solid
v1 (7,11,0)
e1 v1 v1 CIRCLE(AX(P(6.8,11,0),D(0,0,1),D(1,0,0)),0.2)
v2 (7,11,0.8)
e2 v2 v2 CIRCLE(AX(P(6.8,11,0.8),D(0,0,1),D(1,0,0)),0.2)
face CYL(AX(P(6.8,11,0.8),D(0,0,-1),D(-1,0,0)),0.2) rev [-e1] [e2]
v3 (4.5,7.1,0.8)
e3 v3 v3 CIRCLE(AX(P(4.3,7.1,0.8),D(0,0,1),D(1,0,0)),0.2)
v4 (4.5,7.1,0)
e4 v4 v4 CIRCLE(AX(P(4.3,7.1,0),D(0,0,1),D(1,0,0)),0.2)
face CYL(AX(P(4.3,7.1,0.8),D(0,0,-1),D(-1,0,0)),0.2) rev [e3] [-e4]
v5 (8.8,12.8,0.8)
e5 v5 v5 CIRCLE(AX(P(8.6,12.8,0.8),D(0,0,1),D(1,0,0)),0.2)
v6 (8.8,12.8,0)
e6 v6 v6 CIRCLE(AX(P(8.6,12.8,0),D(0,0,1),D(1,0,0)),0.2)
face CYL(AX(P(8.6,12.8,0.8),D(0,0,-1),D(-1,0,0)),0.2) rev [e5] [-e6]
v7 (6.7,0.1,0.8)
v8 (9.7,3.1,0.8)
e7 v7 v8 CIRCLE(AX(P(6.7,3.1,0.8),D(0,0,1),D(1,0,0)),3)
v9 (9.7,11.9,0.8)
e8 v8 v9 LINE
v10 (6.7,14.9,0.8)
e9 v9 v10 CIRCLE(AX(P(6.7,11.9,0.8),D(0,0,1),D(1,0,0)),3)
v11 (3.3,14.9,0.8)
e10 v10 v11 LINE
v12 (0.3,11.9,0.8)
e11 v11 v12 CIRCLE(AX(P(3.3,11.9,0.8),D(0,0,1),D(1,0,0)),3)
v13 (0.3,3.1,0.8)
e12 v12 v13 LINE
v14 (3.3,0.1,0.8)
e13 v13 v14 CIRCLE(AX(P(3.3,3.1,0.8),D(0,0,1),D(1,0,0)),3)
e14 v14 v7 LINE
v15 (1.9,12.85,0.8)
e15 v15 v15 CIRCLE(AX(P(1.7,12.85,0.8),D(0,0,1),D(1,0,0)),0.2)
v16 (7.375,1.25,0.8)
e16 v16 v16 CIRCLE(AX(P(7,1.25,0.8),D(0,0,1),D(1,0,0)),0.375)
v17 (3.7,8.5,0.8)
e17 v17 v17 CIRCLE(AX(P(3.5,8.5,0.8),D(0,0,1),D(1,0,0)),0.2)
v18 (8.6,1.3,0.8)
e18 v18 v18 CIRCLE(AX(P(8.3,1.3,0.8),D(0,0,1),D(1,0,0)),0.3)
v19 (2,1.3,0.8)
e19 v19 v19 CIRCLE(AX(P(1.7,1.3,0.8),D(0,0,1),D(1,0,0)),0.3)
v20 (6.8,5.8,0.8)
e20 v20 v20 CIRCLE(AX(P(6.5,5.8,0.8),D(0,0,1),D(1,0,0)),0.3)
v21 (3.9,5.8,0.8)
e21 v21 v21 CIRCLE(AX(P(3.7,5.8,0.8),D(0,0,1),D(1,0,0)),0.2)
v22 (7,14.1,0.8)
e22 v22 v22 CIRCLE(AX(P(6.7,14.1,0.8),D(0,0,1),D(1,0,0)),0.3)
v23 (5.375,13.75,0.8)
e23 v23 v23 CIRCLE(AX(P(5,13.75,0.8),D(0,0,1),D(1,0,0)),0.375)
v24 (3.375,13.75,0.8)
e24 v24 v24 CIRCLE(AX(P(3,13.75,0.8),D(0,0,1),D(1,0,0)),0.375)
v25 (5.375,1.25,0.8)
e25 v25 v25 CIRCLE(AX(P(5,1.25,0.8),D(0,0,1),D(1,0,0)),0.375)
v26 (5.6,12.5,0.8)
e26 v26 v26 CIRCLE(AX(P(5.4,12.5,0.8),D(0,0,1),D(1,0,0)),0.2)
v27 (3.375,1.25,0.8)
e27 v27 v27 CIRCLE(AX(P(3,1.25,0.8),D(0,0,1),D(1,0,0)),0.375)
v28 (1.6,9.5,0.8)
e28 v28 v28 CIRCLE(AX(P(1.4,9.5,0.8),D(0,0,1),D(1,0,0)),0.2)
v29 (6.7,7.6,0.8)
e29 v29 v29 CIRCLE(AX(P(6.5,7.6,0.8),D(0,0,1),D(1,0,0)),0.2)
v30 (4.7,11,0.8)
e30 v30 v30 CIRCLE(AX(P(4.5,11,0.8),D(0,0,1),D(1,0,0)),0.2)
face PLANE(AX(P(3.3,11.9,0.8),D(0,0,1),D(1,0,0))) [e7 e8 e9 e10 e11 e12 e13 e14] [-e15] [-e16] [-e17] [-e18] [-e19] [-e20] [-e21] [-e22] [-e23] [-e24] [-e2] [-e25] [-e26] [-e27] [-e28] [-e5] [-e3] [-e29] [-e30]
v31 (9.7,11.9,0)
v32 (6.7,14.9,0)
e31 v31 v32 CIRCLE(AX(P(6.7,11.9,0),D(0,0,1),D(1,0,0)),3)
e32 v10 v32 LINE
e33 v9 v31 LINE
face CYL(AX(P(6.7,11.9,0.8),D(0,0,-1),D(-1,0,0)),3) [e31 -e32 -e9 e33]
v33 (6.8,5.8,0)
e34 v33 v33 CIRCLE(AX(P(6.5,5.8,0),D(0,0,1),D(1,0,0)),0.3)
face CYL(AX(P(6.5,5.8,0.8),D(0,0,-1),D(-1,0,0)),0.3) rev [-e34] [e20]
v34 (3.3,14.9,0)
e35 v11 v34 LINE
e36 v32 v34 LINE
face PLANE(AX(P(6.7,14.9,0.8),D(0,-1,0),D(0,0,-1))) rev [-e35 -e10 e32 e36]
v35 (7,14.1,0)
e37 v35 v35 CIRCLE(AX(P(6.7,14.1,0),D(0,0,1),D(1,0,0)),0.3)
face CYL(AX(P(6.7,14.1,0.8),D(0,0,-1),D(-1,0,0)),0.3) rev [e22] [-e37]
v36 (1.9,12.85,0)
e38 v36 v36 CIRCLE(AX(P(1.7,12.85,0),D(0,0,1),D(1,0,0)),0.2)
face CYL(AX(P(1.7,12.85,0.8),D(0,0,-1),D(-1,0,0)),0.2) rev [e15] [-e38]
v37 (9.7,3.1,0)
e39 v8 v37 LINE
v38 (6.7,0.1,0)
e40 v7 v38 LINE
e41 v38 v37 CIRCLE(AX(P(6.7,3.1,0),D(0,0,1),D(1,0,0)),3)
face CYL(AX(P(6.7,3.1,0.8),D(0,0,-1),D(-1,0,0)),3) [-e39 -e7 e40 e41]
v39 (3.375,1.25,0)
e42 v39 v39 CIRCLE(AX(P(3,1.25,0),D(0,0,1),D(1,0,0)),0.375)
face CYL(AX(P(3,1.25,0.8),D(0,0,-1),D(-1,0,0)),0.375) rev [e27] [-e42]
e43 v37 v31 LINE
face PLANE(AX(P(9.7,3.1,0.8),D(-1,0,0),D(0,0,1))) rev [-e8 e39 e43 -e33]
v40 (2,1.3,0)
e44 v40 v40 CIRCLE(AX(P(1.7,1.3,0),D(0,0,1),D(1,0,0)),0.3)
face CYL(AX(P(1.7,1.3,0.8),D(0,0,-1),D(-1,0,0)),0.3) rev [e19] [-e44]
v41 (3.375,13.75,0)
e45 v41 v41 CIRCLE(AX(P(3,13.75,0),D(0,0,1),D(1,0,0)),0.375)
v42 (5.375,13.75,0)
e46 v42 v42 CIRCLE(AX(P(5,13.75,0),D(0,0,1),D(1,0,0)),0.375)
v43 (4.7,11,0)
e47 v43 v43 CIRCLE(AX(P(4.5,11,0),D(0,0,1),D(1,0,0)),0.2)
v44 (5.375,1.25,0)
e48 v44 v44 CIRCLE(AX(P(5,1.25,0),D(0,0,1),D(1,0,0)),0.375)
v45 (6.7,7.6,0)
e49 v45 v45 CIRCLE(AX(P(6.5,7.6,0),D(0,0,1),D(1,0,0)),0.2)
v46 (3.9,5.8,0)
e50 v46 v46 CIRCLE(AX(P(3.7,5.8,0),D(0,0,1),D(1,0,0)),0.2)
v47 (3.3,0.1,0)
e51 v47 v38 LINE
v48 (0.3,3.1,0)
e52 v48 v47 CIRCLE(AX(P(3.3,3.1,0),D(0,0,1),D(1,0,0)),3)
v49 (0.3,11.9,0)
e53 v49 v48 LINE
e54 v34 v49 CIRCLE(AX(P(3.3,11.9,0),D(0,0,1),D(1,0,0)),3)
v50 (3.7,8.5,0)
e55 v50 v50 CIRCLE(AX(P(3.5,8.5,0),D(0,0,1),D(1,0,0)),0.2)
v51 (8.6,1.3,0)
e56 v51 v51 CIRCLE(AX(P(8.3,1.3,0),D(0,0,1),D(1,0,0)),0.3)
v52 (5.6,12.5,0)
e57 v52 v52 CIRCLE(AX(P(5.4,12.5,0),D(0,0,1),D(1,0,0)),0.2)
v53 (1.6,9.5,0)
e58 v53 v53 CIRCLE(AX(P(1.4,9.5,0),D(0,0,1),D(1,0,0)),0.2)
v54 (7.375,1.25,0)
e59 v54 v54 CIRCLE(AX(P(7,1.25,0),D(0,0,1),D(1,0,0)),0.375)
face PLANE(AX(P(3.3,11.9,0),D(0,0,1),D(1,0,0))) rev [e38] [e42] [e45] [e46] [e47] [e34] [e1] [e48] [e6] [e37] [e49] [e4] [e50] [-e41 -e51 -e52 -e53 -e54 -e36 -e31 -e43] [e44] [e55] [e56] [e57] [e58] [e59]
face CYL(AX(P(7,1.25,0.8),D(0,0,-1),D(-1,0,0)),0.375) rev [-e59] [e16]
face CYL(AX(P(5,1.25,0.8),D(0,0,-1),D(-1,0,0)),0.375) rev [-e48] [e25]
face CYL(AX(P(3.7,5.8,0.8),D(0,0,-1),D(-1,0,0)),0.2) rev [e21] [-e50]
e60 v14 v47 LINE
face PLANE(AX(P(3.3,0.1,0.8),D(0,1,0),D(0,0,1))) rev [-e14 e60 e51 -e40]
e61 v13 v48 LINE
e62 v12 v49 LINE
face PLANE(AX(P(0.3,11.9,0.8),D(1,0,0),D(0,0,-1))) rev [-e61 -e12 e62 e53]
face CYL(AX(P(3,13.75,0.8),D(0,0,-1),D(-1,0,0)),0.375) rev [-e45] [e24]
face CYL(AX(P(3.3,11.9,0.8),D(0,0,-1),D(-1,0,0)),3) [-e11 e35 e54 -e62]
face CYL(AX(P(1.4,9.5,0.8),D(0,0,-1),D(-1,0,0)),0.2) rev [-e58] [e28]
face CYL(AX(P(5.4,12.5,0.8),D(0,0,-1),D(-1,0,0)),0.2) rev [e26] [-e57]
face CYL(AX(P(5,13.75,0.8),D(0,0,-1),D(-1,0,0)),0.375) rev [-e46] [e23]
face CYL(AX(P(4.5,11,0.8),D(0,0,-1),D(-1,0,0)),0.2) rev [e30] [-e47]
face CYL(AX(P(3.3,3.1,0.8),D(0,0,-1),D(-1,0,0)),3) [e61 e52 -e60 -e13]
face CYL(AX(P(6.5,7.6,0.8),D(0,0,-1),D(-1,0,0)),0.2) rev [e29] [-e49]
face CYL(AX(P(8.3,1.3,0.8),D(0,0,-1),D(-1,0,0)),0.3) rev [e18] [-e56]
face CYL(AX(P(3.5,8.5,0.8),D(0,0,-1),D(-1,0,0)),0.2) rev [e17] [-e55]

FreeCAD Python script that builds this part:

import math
import FreeCAD as App
import Part
import Sketcher

doc = App.newDocument("Part")
body = doc.addObject("PartDesign::Body", "Body")

sketch1 = body.newObject("Sketcher::SketchObject", "Sketch")
sketch1.AttachmentSupport = (doc.getObject("XY_Plane"), [""])
sketch1.MapMode = "FlatFace"
sketch1.addGeometry(Part.LineSegment(App.Vector(0.3, 11.9, 0), App.Vector(0.3, 3.1, 0)), False)
sketch1.addGeometry(Part.ArcOfCircle(Part.Circle(App.Vector(3.3, 3.1, 0), App.Vector(0, 0, 1), 3), math.radians(180), math.radians(270)), False)
sketch1.addGeometry(Part.LineSegment(App.Vector(3.3, 0.1, 0), App.Vector(6.7, 0.1, 0)), False)
sketch1.addGeometry(Part.ArcOfCircle(Part.Circle(App.Vector(6.7, 3.1, 0), App.Vector(0, 0, 1), 3), math.radians(-90), math.radians(0)), False)
sketch1.addGeometry(Part.LineSegment(App.Vector(9.7, 3.1, 0), App.Vector(9.7, 11.9, 0)), False)
sketch1.addGeometry(Part.ArcOfCircle(Part.Circle(App.Vector(6.7, 11.9, 0), App.Vector(0, 0, 1), 3), math.radians(0), math.radians(90)), False)
sketch1.addGeometry(Part.LineSegment(App.Vector(6.7, 14.9, 0), App.Vector(3.3, 14.9, 0)), False)
sketch1.addGeometry(Part.ArcOfCircle(Part.Circle(App.Vector(3.3, 11.9, 0), App.Vector(0, 0, 1), 3), math.radians(90), math.radians(180)), False)
sketch1.addConstraint(Sketcher.Constraint("Tangent", 0, 2, 1, 1))
sketch1.addConstraint(Sketcher.Constraint("Tangent", 1, 2, 2, 1))
sketch1.addConstraint(Sketcher.Constraint("Tangent", 2, 2, 3, 1))
sketch1.addConstraint(Sketcher.Constraint("Tangent", 3, 2, 4, 1))
sketch1.addConstraint(Sketcher.Constraint("Tangent", 4, 2, 5, 1))
sketch1.addConstraint(Sketcher.Constraint("Tangent", 5, 2, 6, 1))
sketch1.addConstraint(Sketcher.Constraint("Tangent", 6, 2, 7, 1))
sketch1.addConstraint(Sketcher.Constraint("Tangent", 7, 2, 0, 1))
sketch1.addConstraint(Sketcher.Constraint("Vertical", 0))
sketch1.addConstraint(Sketcher.Constraint("Horizontal", 2))
sketch1.addConstraint(Sketcher.Constraint("Vertical", 4))
sketch1.addConstraint(Sketcher.Constraint("Horizontal", 6))
sketch1.addConstraint(Sketcher.Constraint("Equal", 1, 3))
sketch1.addConstraint(Sketcher.Constraint("Equal", 3, 5))
sketch1.addConstraint(Sketcher.Constraint("Equal", 5, 7))
sketch1.addConstraint(Sketcher.Constraint("Radius", 1, 3.0))
sketch1.addConstraint(Sketcher.Constraint("DistanceX", 2, 1, 2, 2, 3.4))
sketch1.addConstraint(Sketcher.Constraint("DistanceY", 0, 2, 0, 1, 8.8))
sketch1.addConstraint(Sketcher.Constraint("DistanceX", -1, 1, 1, 3, 3.3))
sketch1.addConstraint(Sketcher.Constraint("DistanceY", -1, 1, 1, 3, 3.1))
pad1 = body.newObject("PartDesign::Pad", "Pad")
pad1.Profile = sketch1
pad1.Length = 0.8

sketch2 = body.newObject("Sketcher::SketchObject", "Sketch001")
sketch2.AttachmentSupport = (doc.getObject("XY_Plane"), [""])
sketch2.MapMode = "FlatFace"
sketch2.addGeometry(Part.Circle(App.Vector(1.7, 1.3, 0), App.Vector(0, 0, 1), 0.3), False)
sketch2.addGeometry(Part.Circle(App.Vector(8.3, 1.3, 0), App.Vector(0, 0, 1), 0.3), False)
sketch2.addGeometry(Part.Circle(App.Vector(6.7, 14.1, 0), App.Vector(0, 0, 1), 0.3), False)
sketch2.addGeometry(Part.Circle(App.Vector(5, 13.75, 0), App.Vector(0, 0, 1), 0.375), False)
sketch2.addGeometry(Part.Circle(App.Vector(3, 13.75, 0), App.Vector(0, 0, 1), 0.375), False)
sketch2.addGeometry(Part.Circle(App.Vector(3, 1.25, 0), App.Vector(0, 0, 1), 0.375), False)
sketch2.addGeometry(Part.Circle(App.Vector(5, 1.25, 0), App.Vector(0, 0, 1), 0.375), False)
sketch2.addGeometry(Part.Circle(App.Vector(7, 1.25, 0), App.Vector(0, 0, 1), 0.375), False)
sketch2.addConstraint(Sketcher.Constraint("Equal", 0, 1))
sketch2.addConstraint(Sketcher.Constraint("Equal", 1, 2))
sketch2.addConstraint(Sketcher.Constraint("Equal", 3, 4))
sketch2.addConstraint(Sketcher.Constraint("Equal", 4, 5))
sketch2.addConstraint(Sketcher.Constraint("Equal", 5, 6))
sketch2.addConstraint(Sketcher.Constraint("Equal", 6, 7))
sketch2.addConstraint(Sketcher.Constraint("Horizontal", 0, 3, 1, 3))
sketch2.addConstraint(Sketcher.Constraint("Horizontal", 3, 3, 4, 3))
sketch2.addConstraint(Sketcher.Constraint("Horizontal", 5, 3, 6, 3))
sketch2.addConstraint(Sketcher.Constraint("Horizontal", 6, 3, 7, 3))
sketch2.addConstraint(Sketcher.Constraint("Vertical", 4, 3, 5, 3))
sketch2.addConstraint(Sketcher.Constraint("Vertical", 3, 3, 6, 3))
sketch2.addConstraint(Sketcher.Constraint("Diameter", 0, 0.6))
sketch2.addConstraint(Sketcher.Constraint("Diameter", 3, 0.75))
sketch2.addConstraint(Sketcher.Constraint("DistanceX", -1, 1, 3, 3, 5.0))
sketch2.addConstraint(Sketcher.Constraint("DistanceX", -1, 1, 4, 3, 3.0))
sketch2.addConstraint(Sketcher.Constraint("DistanceX", -1, 1, 7, 3, 7.0))
sketch2.addConstraint(Sketcher.Constraint("DistanceX", 0, 3, 2, 3, 5.0))
sketch2.addConstraint(Sketcher.Constraint("DistanceX", -1, 1, 0, 3, 1.7))
sketch2.addConstraint(Sketcher.Constraint("DistanceY", -1, 1, 0, 3, 1.3))
sketch2.addConstraint(Sketcher.Constraint("DistanceX", -1, 1, 1, 3, 8.3))
sketch2.addConstraint(Sketcher.Constraint("DistanceY", -1, 1, 2, 3, 14.1))
sketch2.addConstraint(Sketcher.Constraint("DistanceY", 5, 3, 4, 3, 12.5))
sketch2.addConstraint(Sketcher.Constraint("DistanceY", -1, 1, 3, 3, 13.75))
pocket1 = body.newObject("PartDesign::Pocket", "Pocket")
pocket1.Profile = sketch2
pocket1.Type = "ThroughAll"
pocket1.Reversed = True

sketch3 = body.newObject("Sketcher::SketchObject", "Sketch002")
sketch3.AttachmentSupport = (doc.getObject("XY_Plane"), [""])
sketch3.MapMode = "FlatFace"
sketch3.addGeometry(Part.Circle(App.Vector(4.5, 11, 0), App.Vector(0, 0, 1), 0.2), False)
sketch3.addGeometry(Part.Circle(App.Vector(1.4, 9.5, 0), App.Vector(0, 0, 1), 0.2), False)
sketch3.addGeometry(Part.Circle(App.Vector(8.6, 12.8, 0), App.Vector(0, 0, 1), 0.2), False)
sketch3.addGeometry(Part.Circle(App.Vector(1.7, 12.85, 0), App.Vector(0, 0, 1), 0.2), False)
sketch3.addGeometry(Part.Circle(App.Vector(3.5, 8.5, 0), App.Vector(0, 0, 1), 0.2), False)
sketch3.addGeometry(Part.Circle(App.Vector(3.7, 5.8, 0), App.Vector(0, 0, 1), 0.2), False)
sketch3.addGeometry(Part.Circle(App.Vector(6.8, 11, 0), App.Vector(0, 0, 1), 0.2), False)
sketch3.addGeometry(Part.Circle(App.Vector(6.5, 7.6, 0), App.Vector(0, 0, 1), 0.2), False)
sketch3.addGeometry(Part.Circle(App.Vector(6.5, 5.8, 0), App.Vector(0, 0, 1), 0.3), False)
sketch3.addGeometry(Part.Circle(App.Vector(4.3, 7.1, 0), App.Vector(0, 0, 1), 0.2), False)
sketch3.addGeometry(Part.Circle(App.Vector(5.4, 12.5, 0), App.Vector(0, 0, 1), 0.2), False)
sketch3.addConstraint(Sketcher.Constraint("Equal", 0, 1))
sketch3.addConstraint(Sketcher.Constraint("Equal", 1, 2))
sketch3.addConstraint(Sketcher.Constraint("Equal", 2, 3))
sketch3.addConstraint(Sketcher.Constraint("Equal", 3, 4))
sketch3.addConstraint(Sketcher.Constraint("Equal", 4, 5))
sketch3.addConstraint(Sketcher.Constraint("Equal", 5, 6))
sketch3.addConstraint(Sketcher.Constraint("Equal", 6, 7))
sketch3.addConstraint(Sketcher.Constraint("Equal", 7, 9))
sketch3.addConstraint(Sketcher.Constraint("Equal", 9, 10))
sketch3.addConstraint(Sketcher.Constraint("Horizontal", 0, 3, 6, 3))
sketch3.addConstraint(Sketcher.Constraint("Horizontal", 5, 3, 8, 3))
sketch3.addConstraint(Sketcher.Constraint("Vertical", 7, 3, 8, 3))
sketch3.addConstraint(Sketcher.Constraint("Diameter", 0, 0.4))
sketch3.addConstraint(Sketcher.Constraint("Diameter", 8, 0.6))
sketch3.addConstraint(Sketcher.Constraint("DistanceY", -1, 1, 0, 3, 11.0))
sketch3.addConstraint(Sketcher.Constraint("DistanceY", 4, 3, 1, 3, 1.0))
sketch3.addConstraint(Sketcher.Constraint("DistanceX", 4, 3, 0, 3, 1.0))
sketch3.addConstraint(Sketcher.Constraint("DistanceX", 3, 3, 5, 3, 2.0))
sketch3.addConstraint(Sketcher.Constraint("DistanceY", 5, 3, 2, 3, 7.0))
sketch3.addConstraint(Sketcher.Constraint("DistanceX", 4, 3, 7, 3, 3.0))
sketch3.addConstraint(Sketcher.Constraint("DistanceY", 4, 3, 10, 3, 4.0))
sketch3.addConstraint(Sketcher.Constraint("DistanceX", -1, 1, 0, 3, 4.5))
sketch3.addConstraint(Sketcher.Constraint("DistanceX", -1, 1, 1, 3, 1.4))
sketch3.addConstraint(Sketcher.Constraint("DistanceY", -1, 1, 1, 3, 9.5))
sketch3.addConstraint(Sketcher.Constraint("DistanceX", -1, 1, 2, 3, 8.6))
sketch3.addConstraint(Sketcher.Constraint("DistanceY", -1, 1, 2, 3, 12.8))
sketch3.addConstraint(Sketcher.Constraint("DistanceX", -1, 1, 3, 3, 1.7))
sketch3.addConstraint(Sketcher.Constraint("DistanceX", -1, 1, 6, 3, 6.8))
sketch3.addConstraint(Sketcher.Constraint("DistanceY", -1, 1, 7, 3, 7.6))
sketch3.addConstraint(Sketcher.Constraint("DistanceX", -1, 1, 9, 3, 4.3))
sketch3.addConstraint(Sketcher.Constraint("DistanceY", -1, 1, 9, 3, 7.1))
sketch3.addConstraint(Sketcher.Constraint("DistanceX", -1, 1, 10, 3, 5.4))
sketch3.addConstraint(Sketcher.Constraint("DistanceY", -1, 1, 3, 3, 12.85))
pocket2 = body.newObject("PartDesign::Pocket", "Pocket001")
pocket2.Profile = sketch3
pocket2.Type = "ThroughAll"
pocket2.Reversed = True

doc.recompute()
